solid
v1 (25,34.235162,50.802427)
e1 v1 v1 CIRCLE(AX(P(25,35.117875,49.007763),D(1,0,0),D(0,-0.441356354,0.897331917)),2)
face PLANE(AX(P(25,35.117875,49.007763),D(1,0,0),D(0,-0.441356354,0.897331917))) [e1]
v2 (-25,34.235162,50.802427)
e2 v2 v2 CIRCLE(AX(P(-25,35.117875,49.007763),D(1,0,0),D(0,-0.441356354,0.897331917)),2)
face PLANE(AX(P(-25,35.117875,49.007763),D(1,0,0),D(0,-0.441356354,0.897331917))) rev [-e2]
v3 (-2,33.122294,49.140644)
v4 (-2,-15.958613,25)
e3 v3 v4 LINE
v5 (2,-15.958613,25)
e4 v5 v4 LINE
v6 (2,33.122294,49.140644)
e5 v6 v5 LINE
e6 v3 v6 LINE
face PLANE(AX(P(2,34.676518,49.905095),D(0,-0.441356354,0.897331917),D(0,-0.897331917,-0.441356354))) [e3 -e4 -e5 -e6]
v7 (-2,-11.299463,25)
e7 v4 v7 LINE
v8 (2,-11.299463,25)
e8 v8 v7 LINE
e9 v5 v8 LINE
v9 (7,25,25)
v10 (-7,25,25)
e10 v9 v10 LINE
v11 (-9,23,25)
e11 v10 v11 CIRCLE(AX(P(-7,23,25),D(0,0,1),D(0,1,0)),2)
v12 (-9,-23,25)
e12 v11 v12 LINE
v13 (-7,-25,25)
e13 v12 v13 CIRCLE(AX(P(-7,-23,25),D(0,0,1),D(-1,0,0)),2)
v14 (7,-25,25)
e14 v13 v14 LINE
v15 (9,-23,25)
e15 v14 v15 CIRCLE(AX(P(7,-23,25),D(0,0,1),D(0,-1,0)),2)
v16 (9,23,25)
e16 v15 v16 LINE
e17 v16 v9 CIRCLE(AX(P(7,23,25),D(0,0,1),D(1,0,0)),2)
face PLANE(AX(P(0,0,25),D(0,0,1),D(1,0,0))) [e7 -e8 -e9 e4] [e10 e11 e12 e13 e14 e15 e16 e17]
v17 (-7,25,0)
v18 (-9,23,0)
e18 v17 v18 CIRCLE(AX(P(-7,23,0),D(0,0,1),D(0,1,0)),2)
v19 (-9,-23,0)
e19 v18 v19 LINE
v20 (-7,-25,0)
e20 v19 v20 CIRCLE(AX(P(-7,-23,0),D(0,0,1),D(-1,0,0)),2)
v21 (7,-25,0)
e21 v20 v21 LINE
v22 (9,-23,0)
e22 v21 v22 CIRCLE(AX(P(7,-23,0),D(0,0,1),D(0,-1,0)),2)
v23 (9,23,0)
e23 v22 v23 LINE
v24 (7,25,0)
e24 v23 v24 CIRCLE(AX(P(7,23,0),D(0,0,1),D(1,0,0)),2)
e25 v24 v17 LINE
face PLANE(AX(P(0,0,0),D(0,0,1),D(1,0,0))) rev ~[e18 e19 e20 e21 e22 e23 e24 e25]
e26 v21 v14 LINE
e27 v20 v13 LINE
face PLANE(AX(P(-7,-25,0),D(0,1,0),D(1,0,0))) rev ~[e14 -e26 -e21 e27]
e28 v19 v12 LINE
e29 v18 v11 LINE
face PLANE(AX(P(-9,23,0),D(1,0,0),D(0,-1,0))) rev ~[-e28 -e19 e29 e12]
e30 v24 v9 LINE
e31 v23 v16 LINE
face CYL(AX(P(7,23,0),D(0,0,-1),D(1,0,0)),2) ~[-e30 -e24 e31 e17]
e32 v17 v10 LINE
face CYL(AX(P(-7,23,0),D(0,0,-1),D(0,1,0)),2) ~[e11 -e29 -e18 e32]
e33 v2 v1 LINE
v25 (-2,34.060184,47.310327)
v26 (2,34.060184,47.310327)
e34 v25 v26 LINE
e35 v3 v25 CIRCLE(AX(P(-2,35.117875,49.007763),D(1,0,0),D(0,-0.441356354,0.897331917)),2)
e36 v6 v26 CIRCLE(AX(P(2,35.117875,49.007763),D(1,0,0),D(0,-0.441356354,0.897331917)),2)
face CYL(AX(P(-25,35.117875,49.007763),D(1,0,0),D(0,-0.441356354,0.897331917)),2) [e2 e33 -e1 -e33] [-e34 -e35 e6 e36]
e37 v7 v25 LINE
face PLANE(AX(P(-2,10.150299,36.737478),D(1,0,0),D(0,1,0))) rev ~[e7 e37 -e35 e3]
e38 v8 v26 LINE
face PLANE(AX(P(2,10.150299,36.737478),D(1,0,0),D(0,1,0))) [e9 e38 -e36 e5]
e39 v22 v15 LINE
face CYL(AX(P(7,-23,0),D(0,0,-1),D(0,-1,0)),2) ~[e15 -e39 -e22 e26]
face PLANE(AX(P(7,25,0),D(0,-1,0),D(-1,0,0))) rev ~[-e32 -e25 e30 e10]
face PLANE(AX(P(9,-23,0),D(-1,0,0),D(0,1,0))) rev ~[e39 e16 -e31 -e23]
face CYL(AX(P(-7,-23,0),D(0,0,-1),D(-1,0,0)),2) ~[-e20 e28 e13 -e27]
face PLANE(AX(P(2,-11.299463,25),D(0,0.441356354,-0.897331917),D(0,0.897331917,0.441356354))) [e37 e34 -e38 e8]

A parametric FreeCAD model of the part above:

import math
import FreeCAD as App
import Part
import Sketcher
from FreeCAD import Vector
Q = App.Units.Quantity

doc = App.newDocument("Part")
body = doc.addObject("PartDesign::Body", "Body")

# Sketch on XY plane
sketch1 = doc.addObject("Sketcher::SketchObject", "Sketch")
body.addObject(sketch1)
sketch1.AttachmentSupport = (doc.XY_Plane, [""])
sketch1.MapMode = "FlatFace"
sketch1.addGeometry(Part.LineSegment(Vector(-7, -25, 0), Vector(7, -25, 0)), False)
sketch1.addGeometry(Part.ArcOfCircle(Part.Circle(Vector(7, -23, 0), Vector(0, 0, 1), 2), math.radians(-90), math.radians(0)), False)
sketch1.addGeometry(Part.LineSegment(Vector(9, -23, 0), Vector(9, 23, 0)), False)
sketch1.addGeometry(Part.ArcOfCircle(Part.Circle(Vector(7, 23, 0), Vector(0, 0, 1), 2), math.radians(0), math.radians(90)), False)
sketch1.addGeometry(Part.LineSegment(Vector(7, 25, 0), Vector(-7, 25, 0)), False)
sketch1.addGeometry(Part.ArcOfCircle(Part.Circle(Vector(-7, 23, 0), Vector(0, 0, 1), 2), math.radians(90), math.radians(180)), False)
sketch1.addGeometry(Part.LineSegment(Vector(-9, 23, 0), Vector(-9, -23, 0)), False)
sketch1.addGeometry(Part.ArcOfCircle(Part.Circle(Vector(-7, -23, 0), Vector(0, 0, 1), 2), math.radians(180), math.radians(270)), False)
sketch1.addConstraint(Sketcher.Constraint("Tangent", 0, 2, 1, 1))
sketch1.addConstraint(Sketcher.Constraint("Tangent", 1, 2, 2, 1))
sketch1.addConstraint(Sketcher.Constraint("Tangent", 2, 2, 3, 1))
sketch1.addConstraint(Sketcher.Constraint("Tangent", 3, 2, 4, 1))
sketch1.addConstraint(Sketcher.Constraint("Tangent", 4, 2, 5, 1))
sketch1.addConstraint(Sketcher.Constraint("Tangent", 5, 2, 6, 1))
sketch1.addConstraint(Sketcher.Constraint("Tangent", 6, 2, 7, 1))
sketch1.addConstraint(Sketcher.Constraint("Tangent", 7, 2, 0, 1))
sketch1.addConstraint(Sketcher.Constraint("Horizontal", 0))
sketch1.addConstraint(Sketcher.Constraint("Vertical", 2))
sketch1.addConstraint(Sketcher.Constraint("Horizontal", 4))
sketch1.addConstraint(Sketcher.Constraint("Vertical", 6))
sketch1.addConstraint(Sketcher.Constraint("Equal", 1, 3))
sketch1.addConstraint(Sketcher.Constraint("Equal", 3, 5))
sketch1.addConstraint(Sketcher.Constraint("Equal", 5, 7))
sketch1.addConstraint(Sketcher.Constraint("Symmetric", 1, 3, 5, 3, -1, 1))
sketch1.addConstraint(Sketcher.Constraint("Radius", 1, Q("2 mm")))
sketch1.addConstraint(Sketcher.Constraint("DistanceX", 0, 1, 0, 2, Q("14 mm")))
sketch1.addConstraint(Sketcher.Constraint("DistanceY", 2, 1, 2, 2, Q("46 mm")))
pad1 = doc.addObject("PartDesign::Pad", "Pad")
body.addObject(pad1)
pad1.Profile = sketch1
pad1.Length = 25

# Sketch on YZ plane
sketch2 = doc.addObject("Sketcher::SketchObject", "Sketch001")
body.addObject(sketch2)
sketch2.AttachmentSupport = (doc.YZ_Plane, [""])
sketch2.MapMode = "FlatFace"
sketch2.AttachmentOffset = App.Placement(Vector(0, 0, 2), App.Rotation())
sketch2.addGeometry(Part.LineSegment(Vector(34.7, 49.9, 0), Vector(-16, 25, 0)), False)
sketch2.addGeometry(Part.LineSegment(Vector(-16, 25, 0), Vector(-11.3, 25, 0)), False)
sketch2.addGeometry(Part.LineSegment(Vector(-11.3, 25, 0), Vector(35.6, 48.1, 0)), False)
sketch2.addGeometry(Part.LineSegment(Vector(35.6, 48.1, 0), Vector(34.7, 49.9, 0)), False)
sketch2.addConstraint(Sketcher.Constraint("Coincident", 0, 2, 1, 1))
sketch2.addConstraint(Sketcher.Constraint("Coincident", 1, 2, 2, 1))
sketch2.addConstraint(Sketcher.Constraint("Coincident", 2, 2, 3, 1))
sketch2.addConstraint(Sketcher.Constraint("Coincident", 3, 2, 0, 1))
sketch2.addConstraint(Sketcher.Constraint("Horizontal", 1))
sketch2.addConstraint(Sketcher.Constraint("Parallel", 0, 2))
sketch2.addConstraint(Sketcher.Constraint("Perpendicular", 2, 3))
sketch2.addConstraint(Sketcher.Constraint("DistanceY", -1, 1, 0, 2, Q("25 mm")))
sketch2.addConstraint(Sketcher.Constraint("DistanceX", 1, 1, 1, 2, Q("4.65915 mm")))
sketch2.addConstraint(Sketcher.Constraint("DistanceX", -1, 1, 2, 2, Q("35.584099 mm")))
sketch2.addConstraint(Sketcher.Constraint("Distance", 0, Q("56.428541 mm")))
sketch2.addConstraint(Sketcher.Constraint("DistanceY", -1, 1, 2, 2, Q("48.059871 mm")))
pad2 = doc.addObject("PartDesign::Pad", "Pad001")
body.addObject(pad2)
pad2.Profile = sketch2
pad2.Length = 4
pad2.Reversed = True

# Sketch on an angled plane
sketch3 = doc.addObject("Sketcher::SketchObject", "Sketch002")
body.addObject(sketch3)
sketch3.Placement = App.Placement(Vector(0, 47.686262, 23.454682), App.Rotation(Vector(-1, 0, 0), Vector(0, -0.441356354, 0.897331917), Vector(0, 0.897331917, 0.441356354), "ZXY"))
sketch3.addGeometry(Part.LineSegment(Vector(25, 28.5, 0), Vector(25, 30.5, 0)), False)
sketch3.addGeometry(Part.LineSegment(Vector(25, 30.5, 0), Vector(-25, 30.5, 0)), False)
sketch3.addGeometry(Part.LineSegment(Vector(-25, 30.5, 0), Vector(-25, 28.5, 0)), False)
sketch3.addGeometry(Part.LineSegment(Vector(-25, 28.5, 0), Vector(25, 28.5, 0)), False)
sketch3.addGeometry(Part.LineSegment(Vector(25, 28.5, 0), Vector(-25, 28.5, 0)), True)  # axis
sketch3.addConstraint(Sketcher.Constraint("Coincident", 0, 2, 1, 1))
sketch3.addConstraint(Sketcher.Constraint("Coincident", 1, 2, 2, 1))
sketch3.addConstraint(Sketcher.Constraint("Coincident", 2, 2, 3, 1))
sketch3.addConstraint(Sketcher.Constraint("Coincident", 3, 2, 0, 1))
sketch3.addConstraint(Sketcher.Constraint("Vertical", 0))
sketch3.addConstraint(Sketcher.Constraint("Horizontal", 1))
sketch3.addConstraint(Sketcher.Constraint("Vertical", 2))
sketch3.addConstraint(Sketcher.Constraint("Horizontal", 3))
sketch3.addConstraint(Sketcher.Constraint("Horizontal", 4))
sketch3.addConstraint(Sketcher.Constraint("Coincident", 4, 1, 3, 2))
sketch3.addConstraint(Sketcher.Constraint("Vertical", 1, 2, 4, 2))
sketch3.addConstraint(Sketcher.Constraint("DistanceX", 1, 2, 1, 1, Q("50 mm")))
sketch3.addConstraint(Sketcher.Constraint("DistanceY", 0, 1, 0, 2, Q("2 mm")))
sketch3.addConstraint(Sketcher.Constraint("DistanceX", -1, 1, 0, 2, Q("25 mm")))
sketch3.addConstraint(Sketcher.Constraint("DistanceY", -1, 1, 0, 2, Q("30.476733 mm")))
revolution = doc.addObject("PartDesign::Revolution", "Revolution")
body.addObject(revolution)
revolution.Profile = sketch3
revolution.ReferenceAxis = (sketch3, ["Axis0"])
revolution.Angle = 360

doc.recompute()
